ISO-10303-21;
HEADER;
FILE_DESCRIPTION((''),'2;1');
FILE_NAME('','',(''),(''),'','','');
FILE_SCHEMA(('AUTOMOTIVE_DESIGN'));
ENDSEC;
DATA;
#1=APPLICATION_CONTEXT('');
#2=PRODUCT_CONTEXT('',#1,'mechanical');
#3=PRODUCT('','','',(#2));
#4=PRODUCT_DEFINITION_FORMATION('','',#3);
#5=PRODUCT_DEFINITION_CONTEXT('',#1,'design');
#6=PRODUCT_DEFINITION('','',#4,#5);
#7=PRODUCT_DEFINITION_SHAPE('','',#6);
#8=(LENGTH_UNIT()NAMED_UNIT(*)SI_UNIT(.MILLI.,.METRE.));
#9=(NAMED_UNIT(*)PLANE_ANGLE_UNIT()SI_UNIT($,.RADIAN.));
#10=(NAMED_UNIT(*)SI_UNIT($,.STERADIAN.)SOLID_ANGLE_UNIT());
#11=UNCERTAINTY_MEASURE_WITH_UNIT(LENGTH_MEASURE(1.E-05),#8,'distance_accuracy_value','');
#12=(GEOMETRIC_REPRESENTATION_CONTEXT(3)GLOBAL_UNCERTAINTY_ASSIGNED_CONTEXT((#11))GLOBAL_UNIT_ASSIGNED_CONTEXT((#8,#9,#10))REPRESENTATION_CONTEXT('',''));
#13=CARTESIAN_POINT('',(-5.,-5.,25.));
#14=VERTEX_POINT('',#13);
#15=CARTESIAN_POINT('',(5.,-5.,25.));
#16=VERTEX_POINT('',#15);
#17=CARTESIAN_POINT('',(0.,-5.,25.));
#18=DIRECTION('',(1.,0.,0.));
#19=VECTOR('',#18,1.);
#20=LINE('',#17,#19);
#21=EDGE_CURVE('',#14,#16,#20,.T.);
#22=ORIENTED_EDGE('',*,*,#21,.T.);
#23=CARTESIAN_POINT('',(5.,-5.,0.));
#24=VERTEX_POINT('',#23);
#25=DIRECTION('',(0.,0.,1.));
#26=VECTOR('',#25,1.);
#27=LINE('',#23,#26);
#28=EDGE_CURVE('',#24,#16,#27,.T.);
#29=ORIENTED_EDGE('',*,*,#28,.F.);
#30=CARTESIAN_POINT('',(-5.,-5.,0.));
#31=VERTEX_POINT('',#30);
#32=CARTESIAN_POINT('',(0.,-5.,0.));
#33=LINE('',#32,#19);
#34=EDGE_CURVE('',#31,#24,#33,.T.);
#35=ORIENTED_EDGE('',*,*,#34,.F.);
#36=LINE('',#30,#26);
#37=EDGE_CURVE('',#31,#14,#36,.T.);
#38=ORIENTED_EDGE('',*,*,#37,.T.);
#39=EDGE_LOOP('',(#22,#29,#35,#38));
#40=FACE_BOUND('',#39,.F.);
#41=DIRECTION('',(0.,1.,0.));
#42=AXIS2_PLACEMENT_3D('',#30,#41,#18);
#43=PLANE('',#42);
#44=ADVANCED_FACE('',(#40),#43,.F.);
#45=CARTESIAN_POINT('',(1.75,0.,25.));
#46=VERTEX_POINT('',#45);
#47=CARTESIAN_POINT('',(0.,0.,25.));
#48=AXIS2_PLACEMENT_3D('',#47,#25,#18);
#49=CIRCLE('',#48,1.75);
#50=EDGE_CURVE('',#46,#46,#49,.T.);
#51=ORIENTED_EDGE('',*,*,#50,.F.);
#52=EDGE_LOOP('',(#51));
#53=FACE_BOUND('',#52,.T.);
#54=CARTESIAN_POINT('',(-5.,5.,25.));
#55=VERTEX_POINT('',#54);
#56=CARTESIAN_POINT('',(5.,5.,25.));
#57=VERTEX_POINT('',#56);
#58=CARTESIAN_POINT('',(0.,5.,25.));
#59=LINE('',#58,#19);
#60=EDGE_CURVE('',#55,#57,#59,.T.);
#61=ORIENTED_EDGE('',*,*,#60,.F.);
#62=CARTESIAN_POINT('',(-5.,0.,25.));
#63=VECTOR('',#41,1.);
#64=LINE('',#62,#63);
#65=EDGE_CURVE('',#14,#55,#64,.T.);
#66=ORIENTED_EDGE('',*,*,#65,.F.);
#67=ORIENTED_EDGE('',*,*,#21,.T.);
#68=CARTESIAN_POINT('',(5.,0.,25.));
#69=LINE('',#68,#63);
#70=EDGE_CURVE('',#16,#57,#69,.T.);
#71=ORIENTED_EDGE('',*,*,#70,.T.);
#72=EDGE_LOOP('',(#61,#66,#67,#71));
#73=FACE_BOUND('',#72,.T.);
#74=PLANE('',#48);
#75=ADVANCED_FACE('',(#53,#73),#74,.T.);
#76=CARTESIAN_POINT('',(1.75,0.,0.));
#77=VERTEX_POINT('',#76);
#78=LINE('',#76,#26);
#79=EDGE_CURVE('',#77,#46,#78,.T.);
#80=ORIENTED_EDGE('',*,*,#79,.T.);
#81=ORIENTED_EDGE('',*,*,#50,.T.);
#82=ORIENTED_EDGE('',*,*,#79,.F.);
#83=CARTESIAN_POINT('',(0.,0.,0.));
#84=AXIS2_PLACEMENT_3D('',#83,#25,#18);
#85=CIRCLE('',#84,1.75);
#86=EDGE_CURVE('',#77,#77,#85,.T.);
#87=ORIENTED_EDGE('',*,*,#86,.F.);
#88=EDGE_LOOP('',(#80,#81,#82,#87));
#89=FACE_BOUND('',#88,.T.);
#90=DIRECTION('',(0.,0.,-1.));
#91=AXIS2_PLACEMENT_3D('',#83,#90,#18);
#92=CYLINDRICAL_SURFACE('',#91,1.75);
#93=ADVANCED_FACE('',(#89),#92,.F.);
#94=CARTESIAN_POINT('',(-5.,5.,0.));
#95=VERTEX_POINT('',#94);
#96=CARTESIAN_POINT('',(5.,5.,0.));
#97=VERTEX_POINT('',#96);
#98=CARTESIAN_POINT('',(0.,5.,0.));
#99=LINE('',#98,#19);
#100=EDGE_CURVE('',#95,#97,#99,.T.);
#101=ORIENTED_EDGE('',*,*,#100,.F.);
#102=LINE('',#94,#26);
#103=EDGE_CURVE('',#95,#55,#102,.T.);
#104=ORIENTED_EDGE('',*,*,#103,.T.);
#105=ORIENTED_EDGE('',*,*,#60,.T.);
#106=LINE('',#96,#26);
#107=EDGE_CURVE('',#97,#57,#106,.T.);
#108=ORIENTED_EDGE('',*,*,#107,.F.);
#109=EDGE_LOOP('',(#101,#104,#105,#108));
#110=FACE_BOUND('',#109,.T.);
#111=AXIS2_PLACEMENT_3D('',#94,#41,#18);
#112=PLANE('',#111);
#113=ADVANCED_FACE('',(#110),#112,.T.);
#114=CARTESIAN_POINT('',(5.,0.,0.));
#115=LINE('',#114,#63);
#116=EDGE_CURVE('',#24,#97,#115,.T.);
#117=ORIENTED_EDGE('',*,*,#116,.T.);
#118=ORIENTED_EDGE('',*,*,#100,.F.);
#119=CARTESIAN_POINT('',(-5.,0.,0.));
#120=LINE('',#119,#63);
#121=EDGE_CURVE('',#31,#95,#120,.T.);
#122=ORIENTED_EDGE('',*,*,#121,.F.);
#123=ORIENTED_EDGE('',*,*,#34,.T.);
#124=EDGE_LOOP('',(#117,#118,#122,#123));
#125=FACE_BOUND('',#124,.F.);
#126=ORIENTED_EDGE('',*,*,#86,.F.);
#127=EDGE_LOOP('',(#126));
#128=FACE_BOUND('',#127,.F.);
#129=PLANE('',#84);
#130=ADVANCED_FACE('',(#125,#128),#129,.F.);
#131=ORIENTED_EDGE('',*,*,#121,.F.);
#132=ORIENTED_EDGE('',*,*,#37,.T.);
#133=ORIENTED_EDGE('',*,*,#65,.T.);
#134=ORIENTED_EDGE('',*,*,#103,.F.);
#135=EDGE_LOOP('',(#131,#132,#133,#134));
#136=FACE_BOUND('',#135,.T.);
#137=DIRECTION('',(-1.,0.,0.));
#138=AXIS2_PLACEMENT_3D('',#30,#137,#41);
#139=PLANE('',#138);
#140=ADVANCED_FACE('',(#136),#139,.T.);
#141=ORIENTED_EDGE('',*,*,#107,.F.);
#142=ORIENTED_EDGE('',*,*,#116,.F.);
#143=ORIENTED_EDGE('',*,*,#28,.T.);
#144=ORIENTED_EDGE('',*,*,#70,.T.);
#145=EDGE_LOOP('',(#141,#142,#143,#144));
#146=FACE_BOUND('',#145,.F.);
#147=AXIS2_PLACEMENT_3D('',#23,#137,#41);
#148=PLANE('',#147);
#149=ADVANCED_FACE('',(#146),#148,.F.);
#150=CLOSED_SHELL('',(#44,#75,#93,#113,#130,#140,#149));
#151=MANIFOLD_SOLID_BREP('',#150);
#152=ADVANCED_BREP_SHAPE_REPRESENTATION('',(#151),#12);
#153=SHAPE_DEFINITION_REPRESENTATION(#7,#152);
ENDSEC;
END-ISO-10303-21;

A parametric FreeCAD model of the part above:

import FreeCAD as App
import Part
import Sketcher


def add_polygon(sketch, points):
    """Adds a closed chain of lines whose ends are joined by coincident constraints."""
    first, n = sketch.GeometryCount, len(points)
    for a, b in zip(points, points[1:] + points[:1]):
        sketch.addGeometry(Part.LineSegment(App.Vector(*a, 0), App.Vector(*b, 0)), False)
    for i in range(n):
        sketch.addConstraint(Sketcher.Constraint("Coincident", first + i, 2, first + (i + 1) % n, 1))

doc = App.newDocument("Part")
body = doc.addObject("PartDesign::Body", "Body")

sketch1 = doc.addObject("Sketcher::SketchObject", "Sketch")
body.addObject(sketch1)
sketch1.AttachmentSupport = (doc.XY_Plane, [""])
sketch1.MapMode = "FlatFace"
add_polygon(sketch1, [(-5, 5), (-5, -5), (5, -5), (5, 5)])
sketch1.addConstraint([
    Sketcher.Constraint("Vertical", 0),
    Sketcher.Constraint("Horizontal", 1),
    Sketcher.Constraint("Vertical", 2),
    Sketcher.Constraint("Horizontal", 3),
    Sketcher.Constraint("Symmetric", 0, 2, 2, 2, -1, 1),
    Sketcher.Constraint("Equal", 3, 0),
    Sketcher.Constraint("DistanceX", 1, 1, 1, 2, 10.0),
])
pad1 = doc.addObject("PartDesign::Pad", "Pad")
body.addObject(pad1)
pad1.Profile = sketch1
pad1.Length = 25

sketch2 = doc.addObject("Sketcher::SketchObject", "Sketch001")
body.addObject(sketch2)
sketch2.AttachmentSupport = (doc.XY_Plane, [""])
sketch2.MapMode = "FlatFace"
sketch2.addGeometry(Part.Circle(App.Vector(0, 0, 0), App.Vector(0, 0, 1), 1.8), False)
sketch2.addConstraint([
    Sketcher.Constraint("Coincident", 0, 3, -1, 1),
    Sketcher.Constraint("Diameter", 0, 3.5),
])
pocket1 = doc.addObject("PartDesign::Pocket", "Pocket")
body.addObject(pocket1)
pocket1.Profile = sketch2
pocket1.Type = "ThroughAll"
pocket1.Reversed = True

doc.recompute()
